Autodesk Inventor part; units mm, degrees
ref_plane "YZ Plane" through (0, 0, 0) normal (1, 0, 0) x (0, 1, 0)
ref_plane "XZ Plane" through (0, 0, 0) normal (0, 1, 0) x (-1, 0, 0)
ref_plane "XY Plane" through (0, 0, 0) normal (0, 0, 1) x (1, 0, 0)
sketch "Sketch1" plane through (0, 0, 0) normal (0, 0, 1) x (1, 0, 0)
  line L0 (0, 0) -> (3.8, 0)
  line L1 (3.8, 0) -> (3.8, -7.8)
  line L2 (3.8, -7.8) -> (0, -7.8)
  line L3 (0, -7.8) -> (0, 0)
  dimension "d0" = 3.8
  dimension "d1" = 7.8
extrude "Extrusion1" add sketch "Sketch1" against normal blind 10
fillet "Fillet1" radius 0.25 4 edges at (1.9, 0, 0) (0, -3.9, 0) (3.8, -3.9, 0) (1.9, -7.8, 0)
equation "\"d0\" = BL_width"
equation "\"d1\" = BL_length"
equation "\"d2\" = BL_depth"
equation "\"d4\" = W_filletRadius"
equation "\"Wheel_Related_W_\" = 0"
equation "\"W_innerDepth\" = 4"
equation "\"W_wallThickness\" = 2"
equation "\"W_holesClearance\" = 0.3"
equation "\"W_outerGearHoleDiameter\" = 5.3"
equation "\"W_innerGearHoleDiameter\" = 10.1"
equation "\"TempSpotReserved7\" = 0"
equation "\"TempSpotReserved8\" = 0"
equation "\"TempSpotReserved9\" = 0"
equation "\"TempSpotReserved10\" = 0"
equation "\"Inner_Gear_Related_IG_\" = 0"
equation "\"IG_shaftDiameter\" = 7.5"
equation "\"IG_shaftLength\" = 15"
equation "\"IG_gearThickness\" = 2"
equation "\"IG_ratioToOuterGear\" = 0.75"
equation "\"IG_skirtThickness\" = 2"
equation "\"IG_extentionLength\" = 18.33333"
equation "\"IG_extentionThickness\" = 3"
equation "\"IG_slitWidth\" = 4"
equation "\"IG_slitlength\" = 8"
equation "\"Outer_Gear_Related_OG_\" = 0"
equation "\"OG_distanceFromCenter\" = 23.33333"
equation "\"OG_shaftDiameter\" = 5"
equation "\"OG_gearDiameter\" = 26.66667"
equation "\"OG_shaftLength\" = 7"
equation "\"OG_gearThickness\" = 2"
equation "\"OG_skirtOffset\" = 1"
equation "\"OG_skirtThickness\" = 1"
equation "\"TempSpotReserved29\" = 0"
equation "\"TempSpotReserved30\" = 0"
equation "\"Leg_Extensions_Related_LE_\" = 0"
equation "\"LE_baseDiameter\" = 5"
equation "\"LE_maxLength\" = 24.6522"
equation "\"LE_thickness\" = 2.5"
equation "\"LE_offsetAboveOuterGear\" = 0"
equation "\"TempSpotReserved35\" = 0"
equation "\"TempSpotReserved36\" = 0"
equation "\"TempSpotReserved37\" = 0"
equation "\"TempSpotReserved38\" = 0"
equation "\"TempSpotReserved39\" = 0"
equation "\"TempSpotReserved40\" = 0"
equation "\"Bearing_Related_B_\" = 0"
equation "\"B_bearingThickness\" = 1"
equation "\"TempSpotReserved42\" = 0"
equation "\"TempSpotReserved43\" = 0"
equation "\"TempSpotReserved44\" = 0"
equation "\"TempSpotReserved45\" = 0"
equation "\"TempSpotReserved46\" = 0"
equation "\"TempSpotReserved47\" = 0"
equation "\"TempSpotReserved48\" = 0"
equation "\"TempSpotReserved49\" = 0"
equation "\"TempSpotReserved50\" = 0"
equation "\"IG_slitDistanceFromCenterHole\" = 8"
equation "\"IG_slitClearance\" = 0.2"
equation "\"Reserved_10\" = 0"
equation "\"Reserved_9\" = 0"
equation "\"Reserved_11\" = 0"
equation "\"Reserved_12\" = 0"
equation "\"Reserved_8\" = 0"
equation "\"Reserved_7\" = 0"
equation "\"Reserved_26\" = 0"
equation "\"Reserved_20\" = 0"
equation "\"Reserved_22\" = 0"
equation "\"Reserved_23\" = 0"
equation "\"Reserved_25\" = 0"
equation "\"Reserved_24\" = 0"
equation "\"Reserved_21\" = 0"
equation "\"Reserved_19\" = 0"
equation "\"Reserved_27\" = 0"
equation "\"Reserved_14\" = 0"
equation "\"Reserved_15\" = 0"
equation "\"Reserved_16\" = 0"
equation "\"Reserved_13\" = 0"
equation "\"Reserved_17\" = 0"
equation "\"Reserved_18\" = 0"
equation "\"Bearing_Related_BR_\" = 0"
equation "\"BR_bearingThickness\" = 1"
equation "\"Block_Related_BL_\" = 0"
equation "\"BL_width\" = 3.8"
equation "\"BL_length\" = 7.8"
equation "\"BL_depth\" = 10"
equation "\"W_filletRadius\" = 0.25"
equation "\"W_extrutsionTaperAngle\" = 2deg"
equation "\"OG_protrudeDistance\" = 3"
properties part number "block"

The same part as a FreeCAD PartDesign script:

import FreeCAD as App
import Part
import Sketcher

V = App.Vector


def edges_at(feature, points):
    """Names of the edges that pass closest to the given points."""
    edges = feature.Shape.Edges
    near = lambda p: min(range(len(edges)), key=lambda i: edges[i].distToShape(Part.Vertex(*p))[0])
    return sorted({f"Edge{near(p) + 1}" for p in points})


def add_polygon(sketch, points):
    """Adds a closed chain of lines whose ends are joined by coincident constraints."""
    first, n = sketch.GeometryCount, len(points)
    for a, b in zip(points, points[1:] + points[:1]):
        sketch.addGeometry(Part.LineSegment(App.Vector(*a, 0), App.Vector(*b, 0)), False)
    for i in range(n):
        sketch.addConstraint(Sketcher.Constraint("Coincident", first + i, 2, first + (i + 1) % n, 1))

doc = App.newDocument("Part")
body = doc.addObject("PartDesign::Body", "Body")

# Sketch on XY plane
sketch1 = doc.addObject("Sketcher::SketchObject", "Sketch")
body.addObject(sketch1)
sketch1.AttachmentSupport = (doc.XY_Plane, [""])
sketch1.MapMode = "FlatFace"
add_polygon(sketch1, [(3.8, 0), (0, 0), (0, -7.8), (3.8, -7.8)])  # lines 0-3
sketch1.addConstraint([
    Sketcher.Constraint("Horizontal", 0),
    Sketcher.Constraint("Vertical", 1),
    Sketcher.Constraint("Horizontal", 2),
    Sketcher.Constraint("Vertical", 3),
    Sketcher.Constraint("Coincident", 0, 2, -1, 1),
    Sketcher.Constraint("DistanceX", 0, 2, 0, 1, 3.8),
    Sketcher.Constraint("DistanceY", 1, 2, 1, 1, 7.8),
])
pad1 = doc.addObject("PartDesign::Pad", "Pad")
body.addObject(pad1)
pad1.Profile = sketch1
pad1.Length = 10
pad1.Reversed = True
doc.recompute()

fillet = doc.addObject("PartDesign::Fillet", "Fillet")
body.addObject(fillet)
fillet.Base = (pad1, edges_at(pad1, [
    (1.9, 0, 0),
    (0, -3.9, 0),
    (3.8, -3.9, 0),
    (1.9, -7.8, 0),
]))
fillet.Radius = 0.25

doc.recompute()
